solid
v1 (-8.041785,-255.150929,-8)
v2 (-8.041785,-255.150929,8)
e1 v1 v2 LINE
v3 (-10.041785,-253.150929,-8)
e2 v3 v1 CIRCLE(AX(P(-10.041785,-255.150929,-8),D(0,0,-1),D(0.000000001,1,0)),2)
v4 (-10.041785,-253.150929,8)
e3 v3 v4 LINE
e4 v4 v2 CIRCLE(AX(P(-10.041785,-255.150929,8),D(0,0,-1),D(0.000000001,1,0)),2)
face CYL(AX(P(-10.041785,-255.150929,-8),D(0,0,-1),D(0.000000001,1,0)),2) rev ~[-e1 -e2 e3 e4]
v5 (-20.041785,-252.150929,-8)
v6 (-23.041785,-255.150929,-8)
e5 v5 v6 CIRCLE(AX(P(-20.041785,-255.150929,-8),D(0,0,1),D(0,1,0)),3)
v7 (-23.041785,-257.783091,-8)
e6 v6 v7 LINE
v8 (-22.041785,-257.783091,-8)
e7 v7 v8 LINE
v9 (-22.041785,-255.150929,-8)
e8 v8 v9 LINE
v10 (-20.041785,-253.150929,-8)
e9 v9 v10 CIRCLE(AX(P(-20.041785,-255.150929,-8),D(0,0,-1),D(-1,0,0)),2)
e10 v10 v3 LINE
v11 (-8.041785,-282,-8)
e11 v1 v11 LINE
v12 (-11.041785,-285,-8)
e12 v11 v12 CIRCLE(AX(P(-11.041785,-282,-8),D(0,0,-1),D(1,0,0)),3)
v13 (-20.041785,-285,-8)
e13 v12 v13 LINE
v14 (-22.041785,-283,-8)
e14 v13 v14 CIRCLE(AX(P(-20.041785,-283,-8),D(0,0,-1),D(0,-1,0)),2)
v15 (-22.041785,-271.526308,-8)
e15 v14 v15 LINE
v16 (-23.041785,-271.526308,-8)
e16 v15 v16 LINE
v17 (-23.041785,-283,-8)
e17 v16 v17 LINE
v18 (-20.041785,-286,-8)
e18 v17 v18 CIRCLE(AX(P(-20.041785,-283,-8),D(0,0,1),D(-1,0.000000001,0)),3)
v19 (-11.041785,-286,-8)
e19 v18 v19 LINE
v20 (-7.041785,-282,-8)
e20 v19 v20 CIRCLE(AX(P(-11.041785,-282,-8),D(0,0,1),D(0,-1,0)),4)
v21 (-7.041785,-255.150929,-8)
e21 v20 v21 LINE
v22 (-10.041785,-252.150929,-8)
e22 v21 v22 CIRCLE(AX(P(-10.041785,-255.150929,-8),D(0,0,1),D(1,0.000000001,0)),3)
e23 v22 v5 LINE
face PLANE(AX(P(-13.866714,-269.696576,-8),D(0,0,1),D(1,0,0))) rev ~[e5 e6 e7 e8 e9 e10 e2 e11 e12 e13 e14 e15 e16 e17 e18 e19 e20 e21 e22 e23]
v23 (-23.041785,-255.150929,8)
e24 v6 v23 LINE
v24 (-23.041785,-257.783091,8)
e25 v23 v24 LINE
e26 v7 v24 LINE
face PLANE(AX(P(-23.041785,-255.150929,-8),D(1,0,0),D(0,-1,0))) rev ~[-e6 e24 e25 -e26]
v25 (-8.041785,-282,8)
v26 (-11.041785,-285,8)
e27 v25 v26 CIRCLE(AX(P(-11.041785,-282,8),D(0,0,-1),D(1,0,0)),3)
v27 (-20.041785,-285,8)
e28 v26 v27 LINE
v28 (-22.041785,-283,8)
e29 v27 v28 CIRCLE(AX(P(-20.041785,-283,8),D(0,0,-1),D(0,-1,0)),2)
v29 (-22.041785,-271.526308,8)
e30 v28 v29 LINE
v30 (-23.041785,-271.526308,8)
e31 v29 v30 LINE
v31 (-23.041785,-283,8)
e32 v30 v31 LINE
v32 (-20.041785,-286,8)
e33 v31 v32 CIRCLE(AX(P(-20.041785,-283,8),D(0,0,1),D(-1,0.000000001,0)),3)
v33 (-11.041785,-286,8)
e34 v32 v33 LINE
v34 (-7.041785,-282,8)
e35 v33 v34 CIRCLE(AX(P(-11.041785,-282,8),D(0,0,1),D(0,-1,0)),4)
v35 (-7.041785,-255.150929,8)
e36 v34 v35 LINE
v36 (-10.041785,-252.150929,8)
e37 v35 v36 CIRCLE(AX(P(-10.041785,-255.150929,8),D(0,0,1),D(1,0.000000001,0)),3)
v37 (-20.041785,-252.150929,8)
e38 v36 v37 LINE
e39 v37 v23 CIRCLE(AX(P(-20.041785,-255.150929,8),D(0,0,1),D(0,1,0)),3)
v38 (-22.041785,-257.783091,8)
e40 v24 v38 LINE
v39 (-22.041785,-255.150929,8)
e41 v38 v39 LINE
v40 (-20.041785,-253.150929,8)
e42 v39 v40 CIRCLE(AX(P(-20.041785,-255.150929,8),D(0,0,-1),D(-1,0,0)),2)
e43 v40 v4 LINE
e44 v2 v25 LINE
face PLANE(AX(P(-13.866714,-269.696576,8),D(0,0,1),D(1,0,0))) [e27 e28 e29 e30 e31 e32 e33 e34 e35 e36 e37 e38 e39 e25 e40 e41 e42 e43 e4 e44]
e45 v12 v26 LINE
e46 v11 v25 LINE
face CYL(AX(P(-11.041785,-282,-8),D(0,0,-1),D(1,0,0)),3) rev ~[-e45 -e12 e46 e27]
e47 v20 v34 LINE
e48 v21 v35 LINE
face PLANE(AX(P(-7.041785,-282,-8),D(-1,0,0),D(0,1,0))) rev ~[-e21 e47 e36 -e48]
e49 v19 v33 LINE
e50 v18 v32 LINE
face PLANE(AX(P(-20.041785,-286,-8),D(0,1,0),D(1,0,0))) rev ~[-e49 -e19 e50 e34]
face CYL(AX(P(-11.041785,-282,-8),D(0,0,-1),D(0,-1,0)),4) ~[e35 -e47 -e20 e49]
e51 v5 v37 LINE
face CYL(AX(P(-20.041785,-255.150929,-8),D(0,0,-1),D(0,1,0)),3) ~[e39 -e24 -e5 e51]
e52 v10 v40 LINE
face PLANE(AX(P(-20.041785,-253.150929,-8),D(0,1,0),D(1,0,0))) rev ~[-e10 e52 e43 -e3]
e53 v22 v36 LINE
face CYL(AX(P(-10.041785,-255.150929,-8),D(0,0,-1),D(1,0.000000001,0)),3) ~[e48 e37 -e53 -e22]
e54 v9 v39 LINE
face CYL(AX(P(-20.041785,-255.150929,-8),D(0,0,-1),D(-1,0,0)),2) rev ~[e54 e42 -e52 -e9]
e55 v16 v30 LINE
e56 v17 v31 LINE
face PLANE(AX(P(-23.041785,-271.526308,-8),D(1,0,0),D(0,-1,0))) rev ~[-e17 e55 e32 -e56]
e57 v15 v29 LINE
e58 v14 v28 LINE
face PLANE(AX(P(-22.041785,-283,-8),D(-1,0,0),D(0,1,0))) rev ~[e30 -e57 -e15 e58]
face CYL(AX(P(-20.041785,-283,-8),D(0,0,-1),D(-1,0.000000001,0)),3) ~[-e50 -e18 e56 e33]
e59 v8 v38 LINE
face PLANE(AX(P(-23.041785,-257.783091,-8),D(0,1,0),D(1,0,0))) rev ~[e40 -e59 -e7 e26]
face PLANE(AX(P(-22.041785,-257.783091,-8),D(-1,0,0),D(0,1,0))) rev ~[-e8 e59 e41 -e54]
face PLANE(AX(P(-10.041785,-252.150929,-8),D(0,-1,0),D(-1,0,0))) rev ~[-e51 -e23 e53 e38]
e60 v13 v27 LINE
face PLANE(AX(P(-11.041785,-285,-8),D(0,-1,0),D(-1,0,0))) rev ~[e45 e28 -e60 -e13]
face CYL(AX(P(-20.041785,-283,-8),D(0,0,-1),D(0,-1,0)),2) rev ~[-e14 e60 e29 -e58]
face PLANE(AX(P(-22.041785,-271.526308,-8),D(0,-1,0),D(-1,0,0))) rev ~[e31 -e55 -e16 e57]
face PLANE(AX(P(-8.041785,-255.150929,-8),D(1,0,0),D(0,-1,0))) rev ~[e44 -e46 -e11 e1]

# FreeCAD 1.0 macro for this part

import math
import FreeCAD as App
import Part
import Sketcher

doc = App.newDocument("Part")
body = doc.addObject("PartDesign::Body", "Body")

# Sketch on XY plane
sketch1 = body.newObject("Sketcher::SketchObject", "Sketch")
sketch1.AttachmentSupport = (doc.getObject("XY_Plane"), [""])
sketch1.MapMode = "FlatFace"
sketch1.addGeometry([
    Part.LineSegment(App.Vector(-23.041785, -271.526308, 0), App.Vector(-23.041785, -283, 0)),  # 0
    Part.ArcOfCircle(Part.Circle(App.Vector(-20.041785, -283, 0), App.Vector(0, 0, 1), 3), math.radians(180), math.radians(270)),  # 1
    Part.LineSegment(App.Vector(-20.041785, -286, 0), App.Vector(-11.041785, -286, 0)),  # 2
    Part.ArcOfCircle(Part.Circle(App.Vector(-11.041785, -282, 0), App.Vector(0, 0, 1), 4), math.radians(-90), math.radians(0)),  # 3
    Part.LineSegment(App.Vector(-7.041785, -282, 0), App.Vector(-7.041785, -255.150929, 0)),  # 4
    Part.ArcOfCircle(Part.Circle(App.Vector(-10.041785, -255.150929, 0), App.Vector(0, 0, 1), 3), math.radians(0), math.radians(90)),  # 5
    Part.LineSegment(App.Vector(-10.041785, -252.150929, 0), App.Vector(-20.041785, -252.150929, 0)),  # 6
    Part.ArcOfCircle(Part.Circle(App.Vector(-20.041785, -255.150929, 0), App.Vector(0, 0, 1), 3), math.radians(90), math.radians(180)),  # 7
    Part.LineSegment(App.Vector(-23.041785, -255.150929, 0), App.Vector(-23.041785, -257.783091, 0)),  # 8
    Part.LineSegment(App.Vector(-23.041785, -257.783091, 0), App.Vector(-22.041785, -257.783091, 0)),  # 9
    Part.LineSegment(App.Vector(-22.041785, -257.783091, 0), App.Vector(-22.041785, -255.150929, 0)),  # 10
    Part.ArcOfCircle(Part.Circle(App.Vector(-20.041785, -255.150929, 0), App.Vector(0, 0, 1), 2), math.radians(90), math.radians(180)),  # 11
    Part.LineSegment(App.Vector(-20.041785, -253.150929, 0), App.Vector(-10.041785, -253.150929, 0)),  # 12
    Part.ArcOfCircle(Part.Circle(App.Vector(-10.041785, -255.150929, 0), App.Vector(0, 0, 1), 2), math.radians(0), math.radians(90)),  # 13
    Part.LineSegment(App.Vector(-8.041785, -255.150929, 0), App.Vector(-8.041785, -282, 0)),  # 14
    Part.ArcOfCircle(Part.Circle(App.Vector(-11.041785, -282, 0), App.Vector(0, 0, 1), 3), math.radians(-90), math.radians(0)),  # 15
    Part.LineSegment(App.Vector(-11.041785, -285, 0), App.Vector(-20.041785, -285, 0)),  # 16
    Part.ArcOfCircle(Part.Circle(App.Vector(-20.041785, -283, 0), App.Vector(0, 0, 1), 2), math.radians(180), math.radians(270)),  # 17
    Part.LineSegment(App.Vector(-22.041785, -283, 0), App.Vector(-22.041785, -271.526308, 0)),  # 18
    Part.LineSegment(App.Vector(-22.041785, -271.526308, 0), App.Vector(-23.041785, -271.526308, 0)),  # 19
], False)
sketch1.addConstraint([
    Sketcher.Constraint("Tangent", 0, 2, 1, 1),
    Sketcher.Constraint("Tangent", 1, 2, 2, 1),
    Sketcher.Constraint("Tangent", 2, 2, 3, 1),
    Sketcher.Constraint("Tangent", 3, 2, 4, 1),
    Sketcher.Constraint("Tangent", 4, 2, 5, 1),
    Sketcher.Constraint("Tangent", 5, 2, 6, 1),
    Sketcher.Constraint("Tangent", 6, 2, 7, 1),
    Sketcher.Constraint("Tangent", 7, 2, 8, 1),
    Sketcher.Constraint("Coincident", 8, 2, 9, 1),
    Sketcher.Constraint("Coincident", 9, 2, 10, 1),
    Sketcher.Constraint("Tangent", 10, 2, 11, 2),
    Sketcher.Constraint("Tangent", 11, 1, 12, 1),
    Sketcher.Constraint("Tangent", 12, 2, 13, 2),
    Sketcher.Constraint("Tangent", 13, 1, 14, 1),
    Sketcher.Constraint("Tangent", 14, 2, 15, 2),
    Sketcher.Constraint("Tangent", 15, 1, 16, 1),
    Sketcher.Constraint("Tangent", 16, 2, 17, 2),
    Sketcher.Constraint("Tangent", 17, 1, 18, 1),
    Sketcher.Constraint("Coincident", 18, 2, 19, 1),
    Sketcher.Constraint("Coincident", 19, 2, 0, 1),
    Sketcher.Constraint("Vertical", 0),
    Sketcher.Constraint("Horizontal", 2),
    Sketcher.Constraint("Vertical", 4),
    Sketcher.Constraint("Horizontal", 6),
    Sketcher.Constraint("Vertical", 8),
    Sketcher.Constraint("Horizontal", 9),
    Sketcher.Constraint("Vertical", 10),
    Sketcher.Constraint("Horizontal", 12),
    Sketcher.Constraint("Vertical", 14),
    Sketcher.Constraint("Horizontal", 16),
    Sketcher.Constraint("Vertical", 18),
    Sketcher.Constraint("Horizontal", 19),
    Sketcher.Constraint("Coincident", 11, 3, 7, 3),
    Sketcher.Constraint("Coincident", 13, 3, 5, 3),
    Sketcher.Constraint("Coincident", 15, 3, 3, 3),
    Sketcher.Constraint("Coincident", 17, 3, 1, 3),
    Sketcher.Constraint("Equal", 1, 5),
    Sketcher.Constraint("Equal", 5, 7),
    Sketcher.Constraint("Equal", 7, 15),
    Sketcher.Constraint("Vertical", 1, 3, 7, 3),
    Sketcher.Constraint("Radius", 1, 3.0),
    Sketcher.Constraint("Radius", 3, 4.0),
    Sketcher.Constraint("DistanceX", 2, 1, 2, 2, 9.0),
    Sketcher.Constraint("DistanceY", 1, 3, -1, 1, 283.0),
    Sketcher.Constraint("DistanceY", 0, 2, 0, 1, 11.473692),
    Sketcher.Constraint("DistanceY", 4, 1, 4, 2, 26.849071),
    Sketcher.Constraint("DistanceY", 8, 2, 8, 1, 2.632162),
    Sketcher.Constraint("DistanceX", 1, 3, -1, 1, 20.041785),
])
pad1 = body.newObject("PartDesign::Pad", "Pad")
pad1.Profile = sketch1
pad1.Type = "TwoLengths"
pad1.Length = 8
pad1.Length2 = 8

doc.recompute()
